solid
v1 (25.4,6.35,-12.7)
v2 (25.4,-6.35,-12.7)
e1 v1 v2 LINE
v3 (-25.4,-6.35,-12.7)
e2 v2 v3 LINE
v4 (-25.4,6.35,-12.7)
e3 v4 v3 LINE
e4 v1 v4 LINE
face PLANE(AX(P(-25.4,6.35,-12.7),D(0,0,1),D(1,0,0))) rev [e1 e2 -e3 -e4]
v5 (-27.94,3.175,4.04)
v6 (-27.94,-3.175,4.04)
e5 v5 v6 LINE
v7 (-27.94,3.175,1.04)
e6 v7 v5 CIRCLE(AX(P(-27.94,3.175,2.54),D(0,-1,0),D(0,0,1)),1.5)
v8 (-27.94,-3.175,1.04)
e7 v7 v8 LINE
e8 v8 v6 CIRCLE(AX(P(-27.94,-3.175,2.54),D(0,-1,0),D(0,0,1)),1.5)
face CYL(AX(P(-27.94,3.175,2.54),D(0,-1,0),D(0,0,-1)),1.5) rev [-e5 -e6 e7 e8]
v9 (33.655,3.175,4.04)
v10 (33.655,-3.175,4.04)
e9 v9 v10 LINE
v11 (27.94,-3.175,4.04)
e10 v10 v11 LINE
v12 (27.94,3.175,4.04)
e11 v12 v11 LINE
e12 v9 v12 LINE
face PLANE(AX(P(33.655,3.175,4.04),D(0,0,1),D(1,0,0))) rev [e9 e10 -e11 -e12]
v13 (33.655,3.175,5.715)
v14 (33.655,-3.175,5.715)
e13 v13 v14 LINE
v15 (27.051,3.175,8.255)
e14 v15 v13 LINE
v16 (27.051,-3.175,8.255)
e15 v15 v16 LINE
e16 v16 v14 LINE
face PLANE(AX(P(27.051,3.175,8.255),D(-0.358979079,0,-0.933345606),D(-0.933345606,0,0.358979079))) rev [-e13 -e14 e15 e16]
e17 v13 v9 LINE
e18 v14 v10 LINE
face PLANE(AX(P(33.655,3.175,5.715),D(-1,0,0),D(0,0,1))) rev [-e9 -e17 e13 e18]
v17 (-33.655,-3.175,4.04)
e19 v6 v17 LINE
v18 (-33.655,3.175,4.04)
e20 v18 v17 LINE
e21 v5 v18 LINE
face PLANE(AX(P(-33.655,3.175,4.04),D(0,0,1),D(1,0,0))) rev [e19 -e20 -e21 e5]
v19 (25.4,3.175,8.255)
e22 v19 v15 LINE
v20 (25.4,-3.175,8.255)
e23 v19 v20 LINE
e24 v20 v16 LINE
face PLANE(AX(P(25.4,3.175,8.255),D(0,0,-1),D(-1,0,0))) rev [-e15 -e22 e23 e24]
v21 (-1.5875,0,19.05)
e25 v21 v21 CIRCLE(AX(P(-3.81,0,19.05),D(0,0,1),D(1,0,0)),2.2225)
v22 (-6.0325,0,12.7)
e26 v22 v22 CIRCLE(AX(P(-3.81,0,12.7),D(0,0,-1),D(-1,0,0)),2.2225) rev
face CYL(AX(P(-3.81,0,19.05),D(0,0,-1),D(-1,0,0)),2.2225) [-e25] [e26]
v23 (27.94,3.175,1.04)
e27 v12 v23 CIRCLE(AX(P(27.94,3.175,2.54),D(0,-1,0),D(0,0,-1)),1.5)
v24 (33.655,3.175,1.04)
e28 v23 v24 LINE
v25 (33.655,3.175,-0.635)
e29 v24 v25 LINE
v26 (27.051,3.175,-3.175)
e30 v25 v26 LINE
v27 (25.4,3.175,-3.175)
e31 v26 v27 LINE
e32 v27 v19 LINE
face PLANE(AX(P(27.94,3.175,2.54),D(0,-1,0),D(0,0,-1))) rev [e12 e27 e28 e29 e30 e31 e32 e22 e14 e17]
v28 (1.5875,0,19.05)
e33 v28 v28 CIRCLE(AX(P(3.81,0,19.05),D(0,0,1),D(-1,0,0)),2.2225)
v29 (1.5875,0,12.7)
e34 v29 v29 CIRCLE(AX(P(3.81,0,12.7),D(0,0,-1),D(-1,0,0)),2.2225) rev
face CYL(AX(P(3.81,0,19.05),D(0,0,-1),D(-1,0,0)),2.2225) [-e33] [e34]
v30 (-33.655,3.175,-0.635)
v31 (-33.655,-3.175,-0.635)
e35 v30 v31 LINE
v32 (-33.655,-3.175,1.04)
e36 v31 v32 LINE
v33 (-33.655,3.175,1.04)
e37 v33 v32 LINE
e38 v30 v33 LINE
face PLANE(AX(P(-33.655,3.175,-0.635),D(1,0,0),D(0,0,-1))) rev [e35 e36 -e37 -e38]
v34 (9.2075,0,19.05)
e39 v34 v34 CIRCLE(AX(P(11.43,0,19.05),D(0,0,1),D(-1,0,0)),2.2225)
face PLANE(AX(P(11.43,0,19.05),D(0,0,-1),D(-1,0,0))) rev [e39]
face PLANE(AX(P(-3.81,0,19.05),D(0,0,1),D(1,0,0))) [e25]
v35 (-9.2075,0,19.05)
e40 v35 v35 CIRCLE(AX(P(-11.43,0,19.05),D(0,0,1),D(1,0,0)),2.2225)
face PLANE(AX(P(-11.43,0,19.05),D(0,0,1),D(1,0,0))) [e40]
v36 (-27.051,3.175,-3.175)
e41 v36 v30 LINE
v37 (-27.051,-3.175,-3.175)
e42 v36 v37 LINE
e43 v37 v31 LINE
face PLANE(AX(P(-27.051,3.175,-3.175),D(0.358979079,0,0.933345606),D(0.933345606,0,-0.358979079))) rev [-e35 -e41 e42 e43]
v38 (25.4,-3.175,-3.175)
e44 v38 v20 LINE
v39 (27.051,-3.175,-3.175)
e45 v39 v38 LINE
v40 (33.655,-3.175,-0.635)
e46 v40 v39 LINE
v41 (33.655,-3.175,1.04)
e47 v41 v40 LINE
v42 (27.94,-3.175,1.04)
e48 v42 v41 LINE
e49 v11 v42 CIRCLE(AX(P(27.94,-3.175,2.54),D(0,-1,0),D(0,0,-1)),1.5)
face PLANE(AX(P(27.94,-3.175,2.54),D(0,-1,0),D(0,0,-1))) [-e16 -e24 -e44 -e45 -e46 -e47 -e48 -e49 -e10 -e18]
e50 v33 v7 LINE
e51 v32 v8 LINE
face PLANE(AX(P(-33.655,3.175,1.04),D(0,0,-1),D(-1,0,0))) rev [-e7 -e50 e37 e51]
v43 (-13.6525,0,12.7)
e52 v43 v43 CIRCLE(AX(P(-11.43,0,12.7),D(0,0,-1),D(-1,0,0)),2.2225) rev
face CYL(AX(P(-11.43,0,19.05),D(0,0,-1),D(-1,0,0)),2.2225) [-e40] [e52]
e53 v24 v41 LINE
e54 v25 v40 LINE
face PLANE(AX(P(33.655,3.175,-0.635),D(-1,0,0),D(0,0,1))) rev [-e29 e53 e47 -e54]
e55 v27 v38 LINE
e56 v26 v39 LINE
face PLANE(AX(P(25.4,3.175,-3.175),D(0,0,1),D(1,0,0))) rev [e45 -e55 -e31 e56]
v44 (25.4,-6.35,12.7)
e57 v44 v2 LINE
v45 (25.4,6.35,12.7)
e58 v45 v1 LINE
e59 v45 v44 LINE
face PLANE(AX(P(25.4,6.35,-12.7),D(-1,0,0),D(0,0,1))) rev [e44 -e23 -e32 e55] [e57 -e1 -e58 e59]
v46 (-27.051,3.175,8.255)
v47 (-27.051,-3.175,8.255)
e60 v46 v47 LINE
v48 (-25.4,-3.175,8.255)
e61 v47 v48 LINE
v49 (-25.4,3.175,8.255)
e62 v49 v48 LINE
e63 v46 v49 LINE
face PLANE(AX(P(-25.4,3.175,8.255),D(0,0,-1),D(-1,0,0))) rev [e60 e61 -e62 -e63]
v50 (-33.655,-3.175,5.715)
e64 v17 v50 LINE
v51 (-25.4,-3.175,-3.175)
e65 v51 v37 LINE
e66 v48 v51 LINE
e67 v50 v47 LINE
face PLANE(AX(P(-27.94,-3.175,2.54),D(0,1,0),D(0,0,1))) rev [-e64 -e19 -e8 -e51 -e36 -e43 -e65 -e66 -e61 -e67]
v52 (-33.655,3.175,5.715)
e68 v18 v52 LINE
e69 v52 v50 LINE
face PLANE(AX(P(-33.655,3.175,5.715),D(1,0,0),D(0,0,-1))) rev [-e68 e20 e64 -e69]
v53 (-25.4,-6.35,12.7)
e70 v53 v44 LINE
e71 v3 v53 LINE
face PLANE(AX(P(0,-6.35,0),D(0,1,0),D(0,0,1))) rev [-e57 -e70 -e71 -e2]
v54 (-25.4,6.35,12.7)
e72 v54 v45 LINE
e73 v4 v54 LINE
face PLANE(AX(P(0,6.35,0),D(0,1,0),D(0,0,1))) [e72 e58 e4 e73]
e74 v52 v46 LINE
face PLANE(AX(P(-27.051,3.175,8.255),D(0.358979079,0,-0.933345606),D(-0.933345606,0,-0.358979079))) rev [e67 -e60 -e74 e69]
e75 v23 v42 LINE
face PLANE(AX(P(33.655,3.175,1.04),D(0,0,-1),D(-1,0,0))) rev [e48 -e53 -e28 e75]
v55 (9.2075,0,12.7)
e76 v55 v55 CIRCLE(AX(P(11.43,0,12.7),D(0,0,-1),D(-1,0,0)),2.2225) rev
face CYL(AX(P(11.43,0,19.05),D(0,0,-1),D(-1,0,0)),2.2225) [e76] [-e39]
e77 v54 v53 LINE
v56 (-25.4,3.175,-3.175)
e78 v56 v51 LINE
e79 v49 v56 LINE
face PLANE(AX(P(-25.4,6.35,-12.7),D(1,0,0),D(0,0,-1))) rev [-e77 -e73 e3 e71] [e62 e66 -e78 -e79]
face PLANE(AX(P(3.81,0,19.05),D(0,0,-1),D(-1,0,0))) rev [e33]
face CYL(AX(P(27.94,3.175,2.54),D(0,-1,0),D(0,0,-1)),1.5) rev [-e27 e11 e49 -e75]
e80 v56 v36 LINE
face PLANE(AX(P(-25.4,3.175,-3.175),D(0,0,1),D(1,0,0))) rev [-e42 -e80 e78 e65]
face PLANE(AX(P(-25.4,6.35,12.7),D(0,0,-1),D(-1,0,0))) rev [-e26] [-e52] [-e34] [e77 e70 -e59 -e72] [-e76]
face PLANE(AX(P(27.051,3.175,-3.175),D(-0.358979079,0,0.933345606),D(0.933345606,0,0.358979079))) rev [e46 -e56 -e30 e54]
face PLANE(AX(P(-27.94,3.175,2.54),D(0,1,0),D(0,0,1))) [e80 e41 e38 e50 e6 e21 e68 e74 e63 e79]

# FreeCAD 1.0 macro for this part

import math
import FreeCAD as App
import Part
import Sketcher
Q = App.Units.Quantity

doc = App.newDocument("Part")
body = doc.addObject("PartDesign::Body", "Body")

# Sketch on XZ plane
sketch1 = body.newObject("Sketcher::SketchObject", "Sketch")
sketch1.AttachmentSupport = (doc.getObject("XZ_Plane"), [""])
sketch1.MapMode = "FlatFace"
sketch1.addGeometry([
    Part.LineSegment(App.Vector(-25, -13, 0), App.Vector(-25, 13, 0)),
    Part.LineSegment(App.Vector(-25, 13, 0), App.Vector(25, 13, 0)),
    Part.LineSegment(App.Vector(25, 13, 0), App.Vector(25, -13, 0)),
    Part.LineSegment(App.Vector(25, -13, 0), App.Vector(-25, -13, 0)),
], False)
sketch1.addConstraint([
    Sketcher.Constraint("Coincident", 0, 2, 1, 1),
    Sketcher.Constraint("Coincident", 1, 2, 2, 1),
    Sketcher.Constraint("Coincident", 2, 2, 3, 1),
    Sketcher.Constraint("Coincident", 3, 2, 0, 1),
    Sketcher.Constraint("Vertical", 0),
    Sketcher.Constraint("Horizontal", 1),
    Sketcher.Constraint("Vertical", 2),
    Sketcher.Constraint("Horizontal", 3),
    Sketcher.Constraint("Symmetric", 0, 2, 2, 2, -1, 1),
    Sketcher.Constraint("DistanceX", 1, 1, 1, 2, Q("2 in")),
    Sketcher.Constraint("DistanceY", 0, 1, 0, 2, Q("1 in")),
])
pad1 = body.newObject("PartDesign::Pad", "Pad")
pad1.Profile = sketch1
pad1.Length = Q("0.5 in")
pad1.Midplane = True

# Sketch on XZ plane
sketch2 = body.newObject("Sketcher::SketchObject", "Sketch001")
sketch2.AttachmentSupport = (doc.getObject("XZ_Plane"), [""])
sketch2.MapMode = "FlatFace"
sketch2.addGeometry([
    Part.LineSegment(App.Vector(-25.4, -3.2, 0), App.Vector(-27.1, -3.2, 0)),  # 0
    Part.LineSegment(App.Vector(-27.1, -3.2, 0), App.Vector(-33.7, -0.6, 0)),  # 1
    Part.LineSegment(App.Vector(-33.7, -0.6, 0), App.Vector(-33.7, 1, 0)),  # 2
    Part.LineSegment(App.Vector(-33.7, 1, 0), App.Vector(-27.9, 1, 0)),  # 3
    Part.ArcOfCircle(Part.Circle(App.Vector(-27.9, 2.5, 0), App.Vector(0, 0, 1), 1.5), math.radians(-90), math.radians(90)),  # 4
    Part.LineSegment(App.Vector(-27.9, 4, 0), App.Vector(-33.7, 4, 0)),  # 5
    Part.LineSegment(App.Vector(-33.7, 4, 0), App.Vector(-33.7, 5.7, 0)),  # 6
    Part.LineSegment(App.Vector(-33.7, 5.7, 0), App.Vector(-27.1, 8.3, 0)),  # 7
    Part.LineSegment(App.Vector(-27.1, 8.3, 0), App.Vector(-25.4, 8.3, 0)),  # 8
    Part.LineSegment(App.Vector(-25.4, 8.3, 0), App.Vector(-25.4, -3.2, 0)),  # 9
    Part.LineSegment(App.Vector(25.4, -3.2, 0), App.Vector(25.4, 8.3, 0)),  # 10
    Part.LineSegment(App.Vector(25.4, 8.3, 0), App.Vector(27.1, 8.3, 0)),  # 11
    Part.LineSegment(App.Vector(27.1, 8.3, 0), App.Vector(33.7, 5.7, 0)),  # 12
    Part.LineSegment(App.Vector(33.7, 5.7, 0), App.Vector(33.7, 4, 0)),  # 13
    Part.LineSegment(App.Vector(33.7, 4, 0), App.Vector(27.9, 4, 0)),  # 14
    Part.ArcOfCircle(Part.Circle(App.Vector(27.9, 2.5, 0), App.Vector(0, 0, 1), 1.5), math.radians(90), math.radians(270)),  # 15
    Part.LineSegment(App.Vector(27.9, 1, 0), App.Vector(33.7, 1, 0)),  # 16
    Part.LineSegment(App.Vector(33.7, 1, 0), App.Vector(33.7, -0.6, 0)),  # 17
    Part.LineSegment(App.Vector(33.7, -0.6, 0), App.Vector(27.1, -3.2, 0)),  # 18
    Part.LineSegment(App.Vector(27.1, -3.2, 0), App.Vector(25.4, -3.2, 0)),  # 19
], False)
sketch2.addConstraint([
    Sketcher.Constraint("Coincident", 0, 2, 1, 1),
    Sketcher.Constraint("Coincident", 1, 2, 2, 1),
    Sketcher.Constraint("Coincident", 2, 2, 3, 1),
    Sketcher.Constraint("Tangent", 3, 2, 4, 1),
    Sketcher.Constraint("Tangent", 4, 2, 5, 1),
    Sketcher.Constraint("Coincident", 5, 2, 6, 1),
    Sketcher.Constraint("Coincident", 6, 2, 7, 1),
    Sketcher.Constraint("Coincident", 7, 2, 8, 1),
    Sketcher.Constraint("Coincident", 8, 2, 9, 1),
    Sketcher.Constraint("Coincident", 9, 2, 0, 1),
    Sketcher.Constraint("Coincident", 10, 2, 11, 1),
    Sketcher.Constraint("Coincident", 11, 2, 12, 1),
    Sketcher.Constraint("Coincident", 12, 2, 13, 1),
    Sketcher.Constraint("Coincident", 13, 2, 14, 1),
    Sketcher.Constraint("Tangent", 14, 2, 15, 1),
    Sketcher.Constraint("Tangent", 15, 2, 16, 1),
    Sketcher.Constraint("Coincident", 16, 2, 17, 1),
    Sketcher.Constraint("Coincident", 17, 2, 18, 1),
    Sketcher.Constraint("Coincident", 18, 2, 19, 1),
    Sketcher.Constraint("Coincident", 19, 2, 10, 1),
    Sketcher.Constraint("Horizontal", 0),
    Sketcher.Constraint("Vertical", 2),
    Sketcher.Constraint("Horizontal", 3),
    Sketcher.Constraint("Horizontal", 5),
    Sketcher.Constraint("Vertical", 6),
    Sketcher.Constraint("Horizontal", 8),
    Sketcher.Constraint("Vertical", 9),
    Sketcher.Constraint("Vertical", 10),
    Sketcher.Constraint("Horizontal", 11),
    Sketcher.Constraint("Vertical", 13),
    Sketcher.Constraint("Horizontal", 14),
    Sketcher.Constraint("Horizontal", 16),
    Sketcher.Constraint("Vertical", 17),
    Sketcher.Constraint("Horizontal", 19),
    Sketcher.Constraint("Equal", 4, 15),
    Sketcher.Constraint("Symmetric", 4, 3, 15, 3, -2),
    Sketcher.Constraint("Symmetric", 8, 2, 10, 2, -2),
    Sketcher.Constraint("Symmetric", 6, 2, 12, 2, -2),
    Sketcher.Constraint("Symmetric", 1, 2, 17, 2, -2),
    Sketcher.Constraint("Symmetric", 0, 2, 18, 2, -2),
    Sketcher.Constraint("Parallel", 1, 12),
    Sketcher.Constraint("Parallel", 7, 18),
    Sketcher.Constraint("Vertical", 2, 2, 5, 2),
    Sketcher.Constraint("Vertical", 0, 2, 7, 2),
    Sketcher.Constraint("Equal", 2, 6),
    Sketcher.Constraint("DistanceX", 8, 2, -1, 1, Q("1 in")),
    Sketcher.Constraint("DistanceY", 9, 2, 9, 1, Q("0.45 in")),
    Sketcher.Constraint("DistanceX", 4, 3, -1, 1, Q("1.1 in")),
    Sketcher.Constraint("DistanceY", -1, 1, 4, 3, Q("0.1 in")),
    Sketcher.Constraint("DistanceY", 0, 2, 1, 2, Q("0.1 in")),
    Sketcher.Constraint("DistanceX", 0, 2, 0, 1, Q("0.065 in")),
    Sketcher.Constraint("DistanceX", 3, 1, 3, 2, Q("0.225 in")),
    Sketcher.Constraint("Radius", 4, Q("1.5 mm")),
])
pad2 = body.newObject("PartDesign::Pad", "Pad001")
pad2.Profile = sketch2
pad2.Length = Q("0.25 in")
pad2.Midplane = True

# Sketch on XY plane
sketch3 = body.newObject("Sketcher::SketchObject", "Sketch002")
sketch3.AttachmentSupport = (doc.getObject("XY_Plane"), [""])
sketch3.MapMode = "FlatFace"
sketch3.AttachmentOffset = App.Placement(App.Vector(0, 0, 0.5 * 25.4), App.Rotation())
sketch3.addGeometry([
    Part.Circle(App.Vector(-3.8, 0, 0), App.Vector(0, 0, 1), 2.2),
    Part.Circle(App.Vector(-11.4, 0, 0), App.Vector(0, 0, 1), 2.2),
    Part.Circle(App.Vector(11.4, 0, 0), App.Vector(0, 0, 1), 2.2),
    Part.Circle(App.Vector(3.8, 0, 0), App.Vector(0, 0, 1), 2.2),
], False)
sketch3.addConstraint([
    Sketcher.Constraint("Equal", 0, 1),
    Sketcher.Constraint("Equal", 1, 2),
    Sketcher.Constraint("Equal", 2, 3),
    Sketcher.Constraint("Symmetric", 1, 3, 2, 3, -1, 1),
    Sketcher.Constraint("Symmetric", 0, 3, 3, 3, -1, 1),
    Sketcher.Constraint("PointOnObject", 0, 3, -1),
    Sketcher.Constraint("PointOnObject", 1, 3, -1),
    Sketcher.Constraint("Diameter", 0, Q("0.175 in")),
    Sketcher.Constraint("DistanceX", 1, 3, 0, 3, Q("0.3 in")),
    Sketcher.Constraint("DistanceX", 0, 3, 2, 3, Q("0.6 in")),
])
pad3 = body.newObject("PartDesign::Pad", "Pad002")
pad3.Profile = sketch3
pad3.Length = Q("0.5 in")
pad3.Midplane = True

doc.recompute()
